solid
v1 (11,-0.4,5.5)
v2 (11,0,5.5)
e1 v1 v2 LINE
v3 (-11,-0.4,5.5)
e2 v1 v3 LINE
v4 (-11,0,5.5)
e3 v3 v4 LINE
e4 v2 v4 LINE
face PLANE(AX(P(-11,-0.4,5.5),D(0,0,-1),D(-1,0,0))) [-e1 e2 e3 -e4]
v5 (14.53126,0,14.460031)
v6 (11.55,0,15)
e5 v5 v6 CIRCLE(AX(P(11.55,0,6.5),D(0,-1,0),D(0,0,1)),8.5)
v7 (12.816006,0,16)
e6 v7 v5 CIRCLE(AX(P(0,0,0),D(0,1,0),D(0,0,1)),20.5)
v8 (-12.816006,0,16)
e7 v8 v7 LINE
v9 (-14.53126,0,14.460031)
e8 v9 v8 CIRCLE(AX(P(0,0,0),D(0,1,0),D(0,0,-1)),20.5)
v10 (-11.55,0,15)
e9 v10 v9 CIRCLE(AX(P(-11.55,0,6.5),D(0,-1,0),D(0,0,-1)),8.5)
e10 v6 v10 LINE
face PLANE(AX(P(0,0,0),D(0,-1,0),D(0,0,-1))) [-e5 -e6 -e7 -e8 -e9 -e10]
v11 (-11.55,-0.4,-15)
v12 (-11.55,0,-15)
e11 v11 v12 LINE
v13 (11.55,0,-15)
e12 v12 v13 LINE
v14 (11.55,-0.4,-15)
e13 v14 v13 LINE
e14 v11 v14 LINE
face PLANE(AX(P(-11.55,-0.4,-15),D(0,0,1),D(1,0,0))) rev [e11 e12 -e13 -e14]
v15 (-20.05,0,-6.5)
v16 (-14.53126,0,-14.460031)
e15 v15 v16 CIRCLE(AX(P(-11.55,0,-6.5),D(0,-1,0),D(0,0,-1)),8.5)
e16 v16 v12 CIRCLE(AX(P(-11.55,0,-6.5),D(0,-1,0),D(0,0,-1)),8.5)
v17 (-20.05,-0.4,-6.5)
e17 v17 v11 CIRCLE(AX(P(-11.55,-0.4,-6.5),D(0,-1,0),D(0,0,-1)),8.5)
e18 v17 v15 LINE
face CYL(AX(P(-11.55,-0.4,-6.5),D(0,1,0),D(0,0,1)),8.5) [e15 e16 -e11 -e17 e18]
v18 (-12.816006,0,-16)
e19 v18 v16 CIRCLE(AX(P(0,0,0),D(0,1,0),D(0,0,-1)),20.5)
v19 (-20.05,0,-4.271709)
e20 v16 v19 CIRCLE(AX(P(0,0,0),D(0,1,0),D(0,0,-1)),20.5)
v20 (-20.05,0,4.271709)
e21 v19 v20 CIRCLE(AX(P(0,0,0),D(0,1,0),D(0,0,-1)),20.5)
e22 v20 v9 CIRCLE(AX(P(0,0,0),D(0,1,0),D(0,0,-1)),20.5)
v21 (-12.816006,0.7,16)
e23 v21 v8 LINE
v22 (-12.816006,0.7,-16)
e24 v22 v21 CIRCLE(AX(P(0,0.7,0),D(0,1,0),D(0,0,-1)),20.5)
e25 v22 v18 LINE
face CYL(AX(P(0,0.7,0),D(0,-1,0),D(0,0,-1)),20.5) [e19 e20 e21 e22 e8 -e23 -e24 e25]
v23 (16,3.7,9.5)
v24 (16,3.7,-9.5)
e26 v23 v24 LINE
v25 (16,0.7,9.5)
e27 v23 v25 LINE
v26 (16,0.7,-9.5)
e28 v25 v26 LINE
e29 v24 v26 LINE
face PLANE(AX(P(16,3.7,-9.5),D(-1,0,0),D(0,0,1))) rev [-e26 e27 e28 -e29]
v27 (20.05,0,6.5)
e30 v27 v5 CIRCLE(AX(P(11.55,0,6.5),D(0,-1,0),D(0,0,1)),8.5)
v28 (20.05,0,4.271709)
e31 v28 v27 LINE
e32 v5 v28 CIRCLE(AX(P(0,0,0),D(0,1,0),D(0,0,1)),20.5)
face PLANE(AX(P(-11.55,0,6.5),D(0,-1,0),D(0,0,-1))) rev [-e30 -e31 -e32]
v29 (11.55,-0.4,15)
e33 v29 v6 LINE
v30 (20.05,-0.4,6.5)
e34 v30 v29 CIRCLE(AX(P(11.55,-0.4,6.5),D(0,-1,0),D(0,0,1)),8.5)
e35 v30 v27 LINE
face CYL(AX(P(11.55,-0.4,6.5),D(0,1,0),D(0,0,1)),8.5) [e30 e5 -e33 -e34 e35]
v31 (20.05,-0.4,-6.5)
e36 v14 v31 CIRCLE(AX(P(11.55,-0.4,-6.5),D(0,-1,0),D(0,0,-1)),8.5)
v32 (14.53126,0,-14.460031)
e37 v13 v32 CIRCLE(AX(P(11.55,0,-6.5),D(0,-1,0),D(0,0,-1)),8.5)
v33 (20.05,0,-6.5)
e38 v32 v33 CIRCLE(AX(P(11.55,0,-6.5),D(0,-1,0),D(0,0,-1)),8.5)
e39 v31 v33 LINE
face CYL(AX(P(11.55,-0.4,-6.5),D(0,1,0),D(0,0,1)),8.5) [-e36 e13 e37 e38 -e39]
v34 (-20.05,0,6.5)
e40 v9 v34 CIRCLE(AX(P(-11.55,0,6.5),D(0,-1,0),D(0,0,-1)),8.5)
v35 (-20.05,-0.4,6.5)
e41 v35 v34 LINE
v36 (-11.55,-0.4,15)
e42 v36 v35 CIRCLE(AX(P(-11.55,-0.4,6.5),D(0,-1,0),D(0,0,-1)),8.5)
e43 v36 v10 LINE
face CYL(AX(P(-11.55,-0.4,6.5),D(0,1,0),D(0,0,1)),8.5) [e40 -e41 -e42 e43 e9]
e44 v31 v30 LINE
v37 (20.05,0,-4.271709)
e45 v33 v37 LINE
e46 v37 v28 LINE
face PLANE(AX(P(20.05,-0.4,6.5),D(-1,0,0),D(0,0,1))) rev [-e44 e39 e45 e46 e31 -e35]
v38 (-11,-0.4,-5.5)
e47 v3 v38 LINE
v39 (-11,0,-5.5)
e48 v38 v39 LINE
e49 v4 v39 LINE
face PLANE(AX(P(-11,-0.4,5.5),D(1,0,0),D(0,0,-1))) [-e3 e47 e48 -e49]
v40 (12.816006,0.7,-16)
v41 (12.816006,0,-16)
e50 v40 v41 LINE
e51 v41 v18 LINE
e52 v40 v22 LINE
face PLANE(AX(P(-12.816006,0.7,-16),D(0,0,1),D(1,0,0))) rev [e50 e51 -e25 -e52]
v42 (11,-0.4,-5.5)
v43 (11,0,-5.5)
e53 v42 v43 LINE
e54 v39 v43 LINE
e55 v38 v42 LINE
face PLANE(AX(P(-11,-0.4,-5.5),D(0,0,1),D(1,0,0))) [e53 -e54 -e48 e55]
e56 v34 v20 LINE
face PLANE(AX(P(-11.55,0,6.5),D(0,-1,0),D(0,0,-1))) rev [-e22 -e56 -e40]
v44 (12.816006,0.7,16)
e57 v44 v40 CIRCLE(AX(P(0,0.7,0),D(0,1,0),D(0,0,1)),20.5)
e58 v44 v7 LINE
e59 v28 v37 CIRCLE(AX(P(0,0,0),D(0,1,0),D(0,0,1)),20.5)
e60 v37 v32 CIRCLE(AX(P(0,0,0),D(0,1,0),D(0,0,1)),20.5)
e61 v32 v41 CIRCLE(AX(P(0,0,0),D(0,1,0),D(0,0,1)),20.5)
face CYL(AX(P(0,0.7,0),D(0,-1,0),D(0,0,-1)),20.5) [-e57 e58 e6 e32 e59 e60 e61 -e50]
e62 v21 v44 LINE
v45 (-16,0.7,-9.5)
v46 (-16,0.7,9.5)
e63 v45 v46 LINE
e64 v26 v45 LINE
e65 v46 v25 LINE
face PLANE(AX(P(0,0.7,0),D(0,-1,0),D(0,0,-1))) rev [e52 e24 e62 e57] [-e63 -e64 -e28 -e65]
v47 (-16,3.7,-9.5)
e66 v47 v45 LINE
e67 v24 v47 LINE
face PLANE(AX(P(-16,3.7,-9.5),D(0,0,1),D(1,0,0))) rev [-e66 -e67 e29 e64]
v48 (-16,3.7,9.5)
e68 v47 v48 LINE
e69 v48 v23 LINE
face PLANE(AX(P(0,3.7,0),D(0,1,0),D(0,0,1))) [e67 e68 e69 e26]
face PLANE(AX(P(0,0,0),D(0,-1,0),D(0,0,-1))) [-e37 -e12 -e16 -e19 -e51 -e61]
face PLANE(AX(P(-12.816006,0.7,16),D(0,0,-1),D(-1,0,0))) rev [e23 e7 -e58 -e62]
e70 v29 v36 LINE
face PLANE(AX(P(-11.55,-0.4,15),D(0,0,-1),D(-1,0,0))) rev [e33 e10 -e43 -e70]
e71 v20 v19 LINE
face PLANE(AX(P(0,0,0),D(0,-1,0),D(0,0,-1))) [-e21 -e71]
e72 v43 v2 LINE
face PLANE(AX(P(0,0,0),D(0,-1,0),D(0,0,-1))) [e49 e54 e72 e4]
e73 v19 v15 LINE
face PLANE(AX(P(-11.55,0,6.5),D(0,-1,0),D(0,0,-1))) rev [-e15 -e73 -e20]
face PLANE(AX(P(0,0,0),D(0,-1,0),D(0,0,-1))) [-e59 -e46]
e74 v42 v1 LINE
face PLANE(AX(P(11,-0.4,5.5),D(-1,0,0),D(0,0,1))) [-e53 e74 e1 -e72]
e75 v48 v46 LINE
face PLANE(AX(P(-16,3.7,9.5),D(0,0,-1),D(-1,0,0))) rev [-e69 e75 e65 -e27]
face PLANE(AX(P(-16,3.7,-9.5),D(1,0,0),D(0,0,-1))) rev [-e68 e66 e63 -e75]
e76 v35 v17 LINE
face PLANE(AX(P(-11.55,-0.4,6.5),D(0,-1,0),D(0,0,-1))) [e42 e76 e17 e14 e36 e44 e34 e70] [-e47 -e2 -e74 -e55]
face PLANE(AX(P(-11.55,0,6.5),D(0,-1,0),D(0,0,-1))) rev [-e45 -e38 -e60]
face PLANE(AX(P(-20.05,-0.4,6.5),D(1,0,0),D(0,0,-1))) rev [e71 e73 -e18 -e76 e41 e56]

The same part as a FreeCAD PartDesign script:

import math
import FreeCAD as App
import Part
import Sketcher
Q = App.Units.Quantity

doc = App.newDocument("Part")
params = doc.addObject("Spreadsheet::Sheet", "Params")
for row, (alias, value) in enumerate([
    ("sketch1_radius", "20.5 mm"),
    ("pad1_length", "0.7 mm"),
    ("sketch2_radius", "8.5 mm"),
    ("sketch2_width", "22 mm"),
    ("sketch2_height", "13 mm"),
    ("sketch2_height2", "11 mm"),
    ("sketch2_width2", "23.1 mm"),
    ("pad2_length", "0.4 mm"),
    ("sketch3_width", "32 mm"),
    ("sketch3_height", "19 mm"),
    ("pad3_length", "3 mm"),
], start=1):
    params.set(f"A{row}", alias)
    params.set(f"B{row}", "=" + value)
    params.setAlias(f"B{row}", alias)

body = doc.addObject("PartDesign::Body", "Body")

sketch1 = body.newObject("Sketcher::SketchObject", "Sketch")
sketch1.AttachmentSupport = (doc.getObject("XZ_Plane"), [""])
sketch1.MapMode = "FlatFace"
sketch1.addGeometry(Part.LineSegment(App.Vector(12.816006, -16, 0), App.Vector(-12.816006, -16, 0)), False)
sketch1.addGeometry(Part.ArcOfCircle(Part.Circle(App.Vector(0, 0, 0), App.Vector(0, 0, 1), 20.5), math.radians(128.69474), math.radians(231.30526)), False)
sketch1.addGeometry(Part.LineSegment(App.Vector(-12.816006, 16, 0), App.Vector(12.816006, 16, 0)), False)
sketch1.addGeometry(Part.ArcOfCircle(Part.Circle(App.Vector(0, 0, 0), App.Vector(0, 0, 1), 20.5), math.radians(-51.30526), math.radians(51.30526)), False)
sketch1.addConstraint(Sketcher.Constraint("Coincident", 0, 2, 1, 2))
sketch1.addConstraint(Sketcher.Constraint("Coincident", 1, 1, 2, 1))
sketch1.addConstraint(Sketcher.Constraint("Coincident", 2, 2, 3, 2))
sketch1.addConstraint(Sketcher.Constraint("Coincident", 3, 1, 0, 1))
sketch1.addConstraint(Sketcher.Constraint("Horizontal", 0))
sketch1.addConstraint(Sketcher.Constraint("Horizontal", 2))
sketch1.addConstraint(Sketcher.Constraint("Coincident", 1, 3, -1, 1))
sketch1.addConstraint(Sketcher.Constraint("Coincident", 3, 3, -1, 1))
sketch1.addConstraint(Sketcher.Constraint("Equal", 1, 3))
sketch1.addConstraint(Sketcher.Constraint("Vertical", 0, 2, 1, 1))
sketch1.addConstraint(Sketcher.Constraint("Radius", 1, Q("20.5 mm")))
sketch1.addConstraint(Sketcher.Constraint("DistanceY", 0, 2, -1, 1, Q("16 mm")))
sketch1.setExpression("Constraints[10]", "Params.sketch1_radius")
pad1 = body.newObject("PartDesign::Pad", "Pad")
pad1.Profile = sketch1
pad1.setExpression("Length", "Params.pad1_length")
pad1.Reversed = True

sketch2 = body.newObject("Sketcher::SketchObject", "Sketch001")
sketch2.AttachmentSupport = (doc.getObject("XZ_Plane"), [""])
sketch2.MapMode = "FlatFace"
sketch2.addGeometry(Part.LineSegment(App.Vector(11.55, 15, 0), App.Vector(-11.55, 15, 0)), False)
sketch2.addGeometry(Part.ArcOfCircle(Part.Circle(App.Vector(-11.55, 6.5, 0), App.Vector(0, 0, 1), 8.5), math.radians(90), math.radians(180)), False)
sketch2.addGeometry(Part.LineSegment(App.Vector(-20.05, 6.5, 0), App.Vector(-20.05, -6.5, 0)), False)
sketch2.addGeometry(Part.ArcOfCircle(Part.Circle(App.Vector(-11.55, -6.5, 0), App.Vector(0, 0, 1), 8.5), math.radians(180), math.radians(270)), False)
sketch2.addGeometry(Part.LineSegment(App.Vector(-11.55, -15, 0), App.Vector(11.55, -15, 0)), False)
sketch2.addGeometry(Part.ArcOfCircle(Part.Circle(App.Vector(11.55, -6.5, 0), App.Vector(0, 0, 1), 8.5), math.radians(-90), math.radians(0)), False)
sketch2.addGeometry(Part.LineSegment(App.Vector(20.05, -6.5, 0), App.Vector(20.05, 6.5, 0)), False)
sketch2.addGeometry(Part.ArcOfCircle(Part.Circle(App.Vector(11.55, 6.5, 0), App.Vector(0, 0, 1), 8.5), math.radians(0), math.radians(90)), False)
sketch2.addGeometry(Part.LineSegment(App.Vector(-11, -5.5, 0), App.Vector(-11, 5.5, 0)), False)
sketch2.addGeometry(Part.LineSegment(App.Vector(-11, 5.5, 0), App.Vector(11, 5.5, 0)), False)
sketch2.addGeometry(Part.LineSegment(App.Vector(11, 5.5, 0), App.Vector(11, -5.5, 0)), False)
sketch2.addGeometry(Part.LineSegment(App.Vector(11, -5.5, 0), App.Vector(-11, -5.5, 0)), False)
sketch2.addConstraint(Sketcher.Constraint("Tangent", 0, 2, 1, 1))
sketch2.addConstraint(Sketcher.Constraint("Tangent", 1, 2, 2, 1))
sketch2.addConstraint(Sketcher.Constraint("Tangent", 2, 2, 3, 1))
sketch2.addConstraint(Sketcher.Constraint("Tangent", 3, 2, 4, 1))
sketch2.addConstraint(Sketcher.Constraint("Tangent", 4, 2, 5, 1))
sketch2.addConstraint(Sketcher.Constraint("Tangent", 5, 2, 6, 1))
sketch2.addConstraint(Sketcher.Constraint("Tangent", 6, 2, 7, 1))
sketch2.addConstraint(Sketcher.Constraint("Tangent", 7, 2, 0, 1))
sketch2.addConstraint(Sketcher.Constraint("Coincident", 8, 2, 9, 1))
sketch2.addConstraint(Sketcher.Constraint("Coincident", 9, 2, 10, 1))
sketch2.addConstraint(Sketcher.Constraint("Coincident", 10, 2, 11, 1))
sketch2.addConstraint(Sketcher.Constraint("Coincident", 11, 2, 8, 1))
sketch2.addConstraint(Sketcher.Constraint("Horizontal", 0))
sketch2.addConstraint(Sketcher.Constraint("Vertical", 2))
sketch2.addConstraint(Sketcher.Constraint("Horizontal", 4))
sketch2.addConstraint(Sketcher.Constraint("Vertical", 6))
sketch2.addConstraint(Sketcher.Constraint("Vertical", 8))
sketch2.addConstraint(Sketcher.Constraint("Horizontal", 9))
sketch2.addConstraint(Sketcher.Constraint("Vertical", 10))
sketch2.addConstraint(Sketcher.Constraint("Horizontal", 11))
sketch2.addConstraint(Sketcher.Constraint("Equal", 1, 3))
sketch2.addConstraint(Sketcher.Constraint("Equal", 3, 5))
sketch2.addConstraint(Sketcher.Constraint("Equal", 5, 7))
sketch2.addConstraint(Sketcher.Constraint("Symmetric", 1, 3, 5, 3, -1, 1))
sketch2.addConstraint(Sketcher.Constraint("Symmetric", 8, 2, 10, 2, -1, 1))
sketch2.addConstraint(Sketcher.Constraint("Radius", 1, Q("8.5 mm")))
sketch2.addConstraint(Sketcher.Constraint("DistanceX", 9, 1, 9, 2, Q("22 mm")))
sketch2.addConstraint(Sketcher.Constraint("DistanceY", 2, 2, 2, 1, Q("13 mm")))
sketch2.addConstraint(Sketcher.Constraint("DistanceY", 8, 1, 8, 2, Q("11 mm")))
sketch2.addConstraint(Sketcher.Constraint("DistanceX", 0, 2, 0, 1, Q("23.1 mm")))
sketch2.setExpression("Constraints[25]", "Params.sketch2_radius")
sketch2.setExpression("Constraints[26]", "Params.sketch2_width")
sketch2.setExpression("Constraints[27]", "Params.sketch2_height")
sketch2.setExpression("Constraints[28]", "Params.sketch2_height2")
sketch2.setExpression("Constraints[29]", "Params.sketch2_width2")
pad2 = body.newObject("PartDesign::Pad", "Pad001")
pad2.Profile = sketch2
pad2.setExpression("Length", "Params.pad2_length")

sketch3 = body.newObject("Sketcher::SketchObject", "Sketch002")
sketch3.AttachmentSupport = (doc.getObject("XZ_Plane"), [""])
sketch3.MapMode = "FlatFace"
sketch3.AttachmentOffset = App.Placement(App.Vector(0, 0, -0.7), App.Rotation())
sketch3.addGeometry(Part.LineSegment(App.Vector(-16, -9.5, 0), App.Vector(-16, 9.5, 0)), False)
sketch3.addGeometry(Part.LineSegment(App.Vector(-16, 9.5, 0), App.Vector(16, 9.5, 0)), False)
sketch3.addGeometry(Part.LineSegment(App.Vector(16, 9.5, 0), App.Vector(16, -9.5, 0)), False)
sketch3.addGeometry(Part.LineSegment(App.Vector(16, -9.5, 0), App.Vector(-16, -9.5, 0)), False)
sketch3.addConstraint(Sketcher.Constraint("Coincident", 0, 2, 1, 1))
sketch3.addConstraint(Sketcher.Constraint("Coincident", 1, 2, 2, 1))
sketch3.addConstraint(Sketcher.Constraint("Coincident", 2, 2, 3, 1))
sketch3.addConstraint(Sketcher.Constraint("Coincident", 3, 2, 0, 1))
sketch3.addConstraint(Sketcher.Constraint("Vertical", 0))
sketch3.addConstraint(Sketcher.Constraint("Horizontal", 1))
sketch3.addConstraint(Sketcher.Constraint("Vertical", 2))
sketch3.addConstraint(Sketcher.Constraint("Horizontal", 3))
sketch3.addConstraint(Sketcher.Constraint("Symmetric", 0, 2, 2, 2, -1, 1))
sketch3.addConstraint(Sketcher.Constraint("DistanceX", 1, 1, 1, 2, Q("32 mm")))
sketch3.addConstraint(Sketcher.Constraint("DistanceY", 0, 1, 0, 2, Q("19 mm")))
sketch3.setExpression("Constraints[9]", "Params.sketch3_width")
sketch3.setExpression("Constraints[10]", "Params.sketch3_height")
pad3 = body.newObject("PartDesign::Pad", "Pad002")
pad3.Profile = sketch3
pad3.setExpression("Length", "Params.pad3_length")
pad3.Reversed = True

doc.recompute()
